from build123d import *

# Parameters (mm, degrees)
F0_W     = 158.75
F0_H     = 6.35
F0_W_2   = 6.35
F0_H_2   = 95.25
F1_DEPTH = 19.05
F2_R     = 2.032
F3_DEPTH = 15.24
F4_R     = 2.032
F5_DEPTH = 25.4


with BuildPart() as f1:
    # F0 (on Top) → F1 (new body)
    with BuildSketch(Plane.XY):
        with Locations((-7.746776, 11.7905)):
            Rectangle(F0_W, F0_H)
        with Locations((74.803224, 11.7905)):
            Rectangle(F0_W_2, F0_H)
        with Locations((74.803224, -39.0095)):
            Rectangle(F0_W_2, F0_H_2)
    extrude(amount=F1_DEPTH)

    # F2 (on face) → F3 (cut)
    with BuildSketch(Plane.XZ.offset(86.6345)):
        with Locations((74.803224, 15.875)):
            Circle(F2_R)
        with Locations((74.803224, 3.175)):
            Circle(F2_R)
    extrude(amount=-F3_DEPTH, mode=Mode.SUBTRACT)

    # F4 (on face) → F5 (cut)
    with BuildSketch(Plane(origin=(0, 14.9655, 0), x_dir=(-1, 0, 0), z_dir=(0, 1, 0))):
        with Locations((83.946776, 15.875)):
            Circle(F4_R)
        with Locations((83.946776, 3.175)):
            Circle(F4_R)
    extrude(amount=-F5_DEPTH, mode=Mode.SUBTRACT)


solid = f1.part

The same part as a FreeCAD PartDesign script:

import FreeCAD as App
import Part
import Sketcher

V = App.Vector
Q = App.Units.Quantity

doc = App.newDocument("Part")
params = doc.addObject("Spreadsheet::Sheet", "Params")
for row, (alias, value) in enumerate([
    ("sketch1_height", "4 in"),
    ("sketch1_width", "6.5 in"),
    ("sketch1_width2", "6.25 in"),
    ("pad1_length", "0.75 in"),
    ("sketch2_diameter", "0.16 in"),
    ("pocket1_length", "0.6 in"),
    ("sketch3_diameter", "0.16 in"),
    ("pocket2_length", "1 in"),
], start=1):
    params.set(f"A{row}", alias)
    params.set(f"B{row}", "=" + value)
    params.setAlias(f"B{row}", alias)

body = doc.addObject("PartDesign::Body", "Body")

# Sketch on XY plane
sketch1 = doc.addObject("Sketcher::SketchObject", "Sketch")
body.addObject(sketch1)
sketch1.AttachmentSupport = (doc.XY_Plane, [""])
sketch1.MapMode = "FlatFace"
sketch1.addGeometry([
    Part.LineSegment(V(-87, 15, 0), V(-87, 9, 0)),  # 0
    Part.LineSegment(V(-87, 9, 0), V(72, 9, 0)),  # 1
    Part.LineSegment(V(72, 9, 0), V(72, -87, 0)),  # 2
    Part.LineSegment(V(72, -87, 0), V(78, -87, 0)),  # 3
    Part.LineSegment(V(78, -87, 0), V(78, 15, 0)),  # 4
    Part.LineSegment(V(78, 15, 0), V(-87, 15, 0)),  # 5
], False)
sketch1.addConstraint([
    Sketcher.Constraint("Coincident", 0, 2, 1, 1),
    Sketcher.Constraint("Coincident", 1, 2, 2, 1),
    Sketcher.Constraint("Coincident", 2, 2, 3, 1),
    Sketcher.Constraint("Coincident", 3, 2, 4, 1),
    Sketcher.Constraint("Coincident", 4, 2, 5, 1),
    Sketcher.Constraint("Coincident", 5, 2, 0, 1),
    Sketcher.Constraint("Vertical", 0),
    Sketcher.Constraint("Horizontal", 1),
    Sketcher.Constraint("Vertical", 2),
    Sketcher.Constraint("Horizontal", 3),
    Sketcher.Constraint("Vertical", 4),
    Sketcher.Constraint("Horizontal", 5),
    Sketcher.Constraint("Equal", 3, 0),
    Sketcher.Constraint("DistanceY", 4, 1, 4, 2, Q("4 in")),
    Sketcher.Constraint("DistanceX", 5, 2, 5, 1, Q("6.5 in")),
    Sketcher.Constraint("DistanceX", 1, 1, 1, 2, Q("6.25 in")),
    Sketcher.Constraint("DistanceY", -1, 1, 0, 2, 8.6155),
    Sketcher.Constraint("DistanceX", 0, 2, -1, 1, 87.121776),
])
sketch1.setExpression("Constraints[13]", "Params.sketch1_height")
sketch1.setExpression("Constraints[14]", "Params.sketch1_width")
sketch1.setExpression("Constraints[15]", "Params.sketch1_width2")
pad1 = doc.addObject("PartDesign::Pad", "Pad")
body.addObject(pad1)
pad1.Profile = sketch1
pad1.setExpression("Length", "Params.pad1_length")

# Sketch on XZ plane
sketch2 = doc.addObject("Sketcher::SketchObject", "Sketch001")
body.addObject(sketch2)
sketch2.AttachmentSupport = (doc.XZ_Plane, [""])
sketch2.MapMode = "FlatFace"
sketch2.AttachmentOffset = App.Placement(V(0, 0, 86.6345), App.Rotation())
sketch2.addGeometry([
    Part.Circle(V(74.8, 15.9, 0), V(0, 0, 1), 2),
    Part.Circle(V(74.8, 3.2, 0), V(0, 0, 1), 2),
], False)
sketch2.addConstraint([
    Sketcher.Constraint("Equal", 0, 1),
    Sketcher.Constraint("Vertical", 0, 3, 1, 3),
    Sketcher.Constraint("Diameter", 0, Q("0.16 in")),
    Sketcher.Constraint("DistanceY", 1, 3, 0, 3, Q("0.5 in")),
    Sketcher.Constraint("DistanceY", -1, 1, 0, 3, Q("0.625 in")),
    Sketcher.Constraint("DistanceX", -1, 1, 0, 3, 74.803224),
])
sketch2.setExpression("Constraints[2]", "Params.sketch2_diameter")
pocket1 = doc.addObject("PartDesign::Pocket", "Pocket")
body.addObject(pocket1)
pocket1.Profile = sketch2
pocket1.setExpression("Length", "Params.pocket1_length")

# Sketch on XZ plane
sketch3 = doc.addObject("Sketcher::SketchObject", "Sketch002")
body.addObject(sketch3)
sketch3.AttachmentSupport = (doc.XZ_Plane, [""])
sketch3.MapMode = "FlatFace"
sketch3.AttachmentOffset = App.Placement(V(0, 0, -14.9655), App.Rotation())
sketch3.addGeometry([
    Part.Circle(V(-83.9, 15.9, 0), V(0, 0, 1), 2),
    Part.Circle(V(-83.9, 3.2, 0), V(0, 0, 1), 2),
], False)
sketch3.addConstraint([
    Sketcher.Constraint("Equal", 0, 1),
    Sketcher.Constraint("Vertical", 0, 3, 1, 3),
    Sketcher.Constraint("Diameter", 0, Q("0.16 in")),
    Sketcher.Constraint("DistanceY", 1, 3, 0, 3, Q("0.5 in")),
    Sketcher.Constraint("DistanceY", -1, 1, 0, 3, Q("0.625 in")),
    Sketcher.Constraint("DistanceX", 0, 3, -1, 1, 83.946776),
])
sketch3.setExpression("Constraints[2]", "Params.sketch3_diameter")
pocket2 = doc.addObject("PartDesign::Pocket", "Pocket001")
body.addObject(pocket2)
pocket2.Profile = sketch3
pocket2.setExpression("Length", "Params.pocket2_length")
pocket2.Reversed = True

doc.recompute()
